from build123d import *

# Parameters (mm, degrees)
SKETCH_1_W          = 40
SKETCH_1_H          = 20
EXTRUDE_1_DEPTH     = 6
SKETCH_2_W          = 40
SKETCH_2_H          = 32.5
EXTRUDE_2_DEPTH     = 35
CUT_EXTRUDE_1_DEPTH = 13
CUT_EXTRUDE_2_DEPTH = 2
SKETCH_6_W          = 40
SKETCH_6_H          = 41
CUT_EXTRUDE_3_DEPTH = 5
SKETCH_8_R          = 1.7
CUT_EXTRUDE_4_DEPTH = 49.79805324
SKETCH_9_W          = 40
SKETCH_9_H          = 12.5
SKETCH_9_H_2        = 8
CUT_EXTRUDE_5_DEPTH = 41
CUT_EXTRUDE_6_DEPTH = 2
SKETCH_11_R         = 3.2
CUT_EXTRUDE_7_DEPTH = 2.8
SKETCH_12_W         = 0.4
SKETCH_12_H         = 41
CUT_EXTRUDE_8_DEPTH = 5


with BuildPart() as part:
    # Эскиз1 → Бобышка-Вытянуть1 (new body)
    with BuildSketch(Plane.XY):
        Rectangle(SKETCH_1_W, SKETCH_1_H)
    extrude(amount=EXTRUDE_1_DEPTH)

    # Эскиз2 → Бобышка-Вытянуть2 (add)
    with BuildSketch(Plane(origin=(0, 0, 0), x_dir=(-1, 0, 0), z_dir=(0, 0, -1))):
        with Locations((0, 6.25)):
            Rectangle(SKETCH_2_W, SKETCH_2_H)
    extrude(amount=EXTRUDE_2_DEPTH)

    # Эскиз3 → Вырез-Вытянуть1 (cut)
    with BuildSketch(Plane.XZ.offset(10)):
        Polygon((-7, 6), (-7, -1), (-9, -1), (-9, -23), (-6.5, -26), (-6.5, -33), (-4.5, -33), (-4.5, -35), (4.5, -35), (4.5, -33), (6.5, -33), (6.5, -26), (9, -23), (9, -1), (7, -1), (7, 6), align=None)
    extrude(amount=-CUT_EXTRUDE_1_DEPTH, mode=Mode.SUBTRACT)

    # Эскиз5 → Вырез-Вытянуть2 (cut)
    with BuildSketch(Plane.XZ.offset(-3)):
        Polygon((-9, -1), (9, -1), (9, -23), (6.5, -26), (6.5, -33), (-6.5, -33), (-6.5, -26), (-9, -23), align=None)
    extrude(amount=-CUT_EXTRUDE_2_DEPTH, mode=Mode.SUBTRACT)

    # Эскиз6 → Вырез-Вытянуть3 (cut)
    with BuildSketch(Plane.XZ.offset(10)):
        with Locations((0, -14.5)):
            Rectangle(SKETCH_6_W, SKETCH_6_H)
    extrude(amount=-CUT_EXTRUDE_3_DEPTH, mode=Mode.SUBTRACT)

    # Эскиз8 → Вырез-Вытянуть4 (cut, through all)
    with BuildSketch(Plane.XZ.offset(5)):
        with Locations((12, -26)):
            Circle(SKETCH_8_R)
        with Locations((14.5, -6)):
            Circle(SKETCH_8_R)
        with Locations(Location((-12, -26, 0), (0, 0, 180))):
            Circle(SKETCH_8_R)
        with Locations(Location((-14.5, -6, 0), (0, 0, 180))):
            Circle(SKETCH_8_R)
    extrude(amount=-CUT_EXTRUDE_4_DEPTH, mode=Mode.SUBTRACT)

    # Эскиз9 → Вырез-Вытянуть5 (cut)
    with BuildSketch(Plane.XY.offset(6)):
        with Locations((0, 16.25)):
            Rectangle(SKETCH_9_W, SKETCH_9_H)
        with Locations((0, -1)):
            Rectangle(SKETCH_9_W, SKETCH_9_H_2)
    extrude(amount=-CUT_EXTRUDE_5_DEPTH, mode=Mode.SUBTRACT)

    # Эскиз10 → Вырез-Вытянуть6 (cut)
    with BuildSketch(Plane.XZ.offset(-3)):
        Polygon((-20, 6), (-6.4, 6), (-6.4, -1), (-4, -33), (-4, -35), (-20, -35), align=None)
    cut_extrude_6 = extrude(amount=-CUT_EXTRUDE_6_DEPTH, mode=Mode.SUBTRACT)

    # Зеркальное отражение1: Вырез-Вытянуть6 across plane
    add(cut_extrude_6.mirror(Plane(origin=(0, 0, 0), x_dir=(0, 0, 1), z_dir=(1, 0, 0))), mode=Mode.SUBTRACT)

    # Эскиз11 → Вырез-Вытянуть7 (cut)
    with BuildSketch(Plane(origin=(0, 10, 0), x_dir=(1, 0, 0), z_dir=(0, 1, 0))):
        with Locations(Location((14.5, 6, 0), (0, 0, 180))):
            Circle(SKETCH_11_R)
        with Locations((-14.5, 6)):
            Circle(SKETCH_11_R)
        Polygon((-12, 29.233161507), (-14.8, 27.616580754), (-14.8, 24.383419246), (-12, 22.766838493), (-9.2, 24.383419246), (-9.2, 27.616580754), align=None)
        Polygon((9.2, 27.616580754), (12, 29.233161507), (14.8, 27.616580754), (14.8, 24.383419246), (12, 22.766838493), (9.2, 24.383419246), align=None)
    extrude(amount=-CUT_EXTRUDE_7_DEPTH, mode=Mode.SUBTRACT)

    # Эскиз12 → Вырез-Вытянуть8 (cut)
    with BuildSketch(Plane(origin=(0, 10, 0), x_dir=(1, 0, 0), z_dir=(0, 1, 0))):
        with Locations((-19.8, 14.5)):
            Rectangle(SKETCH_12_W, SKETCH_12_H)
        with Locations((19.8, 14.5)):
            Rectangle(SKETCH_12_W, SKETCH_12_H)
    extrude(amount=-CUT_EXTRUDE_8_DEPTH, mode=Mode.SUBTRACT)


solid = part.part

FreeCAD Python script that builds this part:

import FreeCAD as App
import Part
import Sketcher
Q = App.Units.Quantity


def add_polygon(sketch, points):
    """Adds a closed chain of lines whose ends are joined by coincident constraints."""
    first, n = sketch.GeometryCount, len(points)
    for a, b in zip(points, points[1:] + points[:1]):
        sketch.addGeometry(Part.LineSegment(App.Vector(*a, 0), App.Vector(*b, 0)), False)
    for i in range(n):
        sketch.addConstraint(Sketcher.Constraint("Coincident", first + i, 2, first + (i + 1) % n, 1))

doc = App.newDocument("Part")
body = doc.addObject("PartDesign::Body", "Body")

# Sketch on XY plane
sketch1 = doc.addObject("Sketcher::SketchObject", "Sketch")
body.addObject(sketch1)
sketch1.AttachmentSupport = (doc.XY_Plane, [""])
sketch1.MapMode = "FlatFace"
add_polygon(sketch1, [(-20, 10), (-20, -10), (20, -10), (20, 10)])  # lines 0-3
sketch1.addConstraint([
    Sketcher.Constraint("Vertical", 0),
    Sketcher.Constraint("Horizontal", 1),
    Sketcher.Constraint("Vertical", 2),
    Sketcher.Constraint("Horizontal", 3),
    Sketcher.Constraint("Symmetric", 0, 2, 2, 2, -1, 1),
    Sketcher.Constraint("DistanceX", 1, 1, 1, 2, Q("40 mm")),
    Sketcher.Constraint("DistanceY", 0, 2, 0, 1, Q("20 mm")),
])
pad1 = doc.addObject("PartDesign::Pad", "Pad")
body.addObject(pad1)
pad1.Profile = sketch1
pad1.Length = 6

# Sketch on XY plane
sketch2 = doc.addObject("Sketcher::SketchObject", "Sketch001")
body.addObject(sketch2)
sketch2.AttachmentSupport = (doc.XY_Plane, [""])
sketch2.MapMode = "FlatFace"
add_polygon(sketch2, [(20, 22), (20, -10), (-20, -10), (-20, 22)])  # lines 0-3
sketch2.addConstraint([
    Sketcher.Constraint("Vertical", 0),
    Sketcher.Constraint("Horizontal", 1),
    Sketcher.Constraint("Vertical", 2),
    Sketcher.Constraint("Horizontal", 3),
    Sketcher.Constraint("DistanceX", 1, 2, 1, 1, Q("40 mm")),
    Sketcher.Constraint("DistanceY", 0, 2, 0, 1, Q("32.5 mm")),
    Sketcher.Constraint("DistanceX", -1, 1, 0, 2, Q("20 mm")),
    Sketcher.Constraint("DistanceY", 0, 2, -1, 1, Q("10 mm")),
])
pad2 = doc.addObject("PartDesign::Pad", "Pad001")
body.addObject(pad2)
pad2.Profile = sketch2
pad2.Length = 35
pad2.Reversed = True

# Sketch on XZ plane
sketch3 = doc.addObject("Sketcher::SketchObject", "Sketch002")
body.addObject(sketch3)
sketch3.AttachmentSupport = (doc.XZ_Plane, [""])
sketch3.MapMode = "FlatFace"
sketch3.AttachmentOffset = App.Placement(App.Vector(0, 0, 10), App.Rotation())
add_polygon(sketch3, [(-7, 6), (-7, -1), (-9, -1), (-9, -23), (-6.5, -26), (-6.5, -33), (-4.5, -33), (-4.5, -35), (4.5, -35), (4.5, -33), (6.5, -33), (6.5, -26), (9, -23), (9, -1), (7, -1), (7, 6)])  # lines 0-15
sketch3.addConstraint([
    Sketcher.Constraint("Vertical", 0),
    Sketcher.Constraint("Horizontal", 1),
    Sketcher.Constraint("Vertical", 2),
    Sketcher.Constraint("Vertical", 4),
    Sketcher.Constraint("Horizontal", 5),
    Sketcher.Constraint("Vertical", 6),
    Sketcher.Constraint("Horizontal", 7),
    Sketcher.Constraint("Vertical", 8),
    Sketcher.Constraint("Horizontal", 9),
    Sketcher.Constraint("Vertical", 10),
    Sketcher.Constraint("Vertical", 12),
    Sketcher.Constraint("Horizontal", 13),
    Sketcher.Constraint("Vertical", 14),
    Sketcher.Constraint("Horizontal", 15),
    Sketcher.Constraint("Symmetric", 5, 2, 8, 2, -2),
    Sketcher.Constraint("Symmetric", 3, 2, 10, 2, -2),
    Sketcher.Constraint("Symmetric", 2, 2, 11, 2, -2),
    Sketcher.Constraint("Symmetric", 0, 2, 13, 2, -2),
    Sketcher.Constraint("Equal", 1, 5),
    Sketcher.Constraint("Equal", 0, 4),
    Sketcher.Constraint("Equal", 13, 6),
    Sketcher.Constraint("DistanceX", 1, 2, 1, 1, Q("2 mm")),
    Sketcher.Constraint("DistanceX", 7, 1, 7, 2, Q("9 mm")),
    Sketcher.Constraint("DistanceX", 15, 2, 15, 1, Q("14 mm")),
    Sketcher.Constraint("DistanceY", 0, 2, 0, 1, Q("7 mm")),
    Sketcher.Constraint("DistanceY", 2, 2, 2, 1, Q("22 mm")),
    Sketcher.Constraint("DistanceY", 0, 2, -1, 1, Q("1 mm")),
    Sketcher.Constraint("DistanceY", 3, 2, -1, 1, Q("26 mm")),
])
pocket1 = doc.addObject("PartDesign::Pocket", "Pocket")
body.addObject(pocket1)
pocket1.Profile = sketch3
pocket1.Length = 13

# Sketch on XZ plane
sketch4 = doc.addObject("Sketcher::SketchObject", "Sketch003")
body.addObject(sketch4)
sketch4.AttachmentSupport = (doc.XZ_Plane, [""])
sketch4.MapMode = "FlatFace"
sketch4.AttachmentOffset = App.Placement(App.Vector(0, 0, -3), App.Rotation())
add_polygon(sketch4, [(9, -1), (-9, -1), (-9, -23), (-6.5, -26), (-6.5, -33), (6.5, -33), (6.5, -26), (9, -23)])  # lines 0-7
sketch4.addConstraint([
    Sketcher.Constraint("Horizontal", 0),
    Sketcher.Constraint("Vertical", 1),
    Sketcher.Constraint("Vertical", 3),
    Sketcher.Constraint("Horizontal", 4),
    Sketcher.Constraint("Vertical", 5),
    Sketcher.Constraint("Vertical", 7),
    Sketcher.Constraint("Symmetric", 2, 2, 5, 2, -2),
    Sketcher.Constraint("Symmetric", 1, 2, 6, 2, -2),
    Sketcher.Constraint("DistanceX", 0, 2, 0, 1, Q("18 mm")),
    Sketcher.Constraint("DistanceX", 4, 1, 4, 2, Q("13 mm")),
    Sketcher.Constraint("DistanceY", 1, 2, 1, 1, Q("22 mm")),
    Sketcher.Constraint("DistanceY", 3, 2, 3, 1, Q("7 mm")),
    Sketcher.Constraint("DistanceY", 0, 2, -1, 1, Q("1 mm")),
    Sketcher.Constraint("DistanceY", 2, 2, -1, 1, Q("26 mm")),
])
pocket2 = doc.addObject("PartDesign::Pocket", "Pocket001")
body.addObject(pocket2)
pocket2.Profile = sketch4
pocket2.Length = 2

# Sketch on XZ plane
sketch5 = doc.addObject("Sketcher::SketchObject", "Sketch004")
body.addObject(sketch5)
sketch5.AttachmentSupport = (doc.XZ_Plane, [""])
sketch5.MapMode = "FlatFace"
sketch5.AttachmentOffset = App.Placement(App.Vector(0, 0, 10), App.Rotation())
add_polygon(sketch5, [(-20, 6), (-20, -35), (20, -35), (20, 6)])  # lines 0-3
sketch5.addConstraint([
    Sketcher.Constraint("Vertical", 0),
    Sketcher.Constraint("Horizontal", 1),
    Sketcher.Constraint("Vertical", 2),
    Sketcher.Constraint("Horizontal", 3),
    Sketcher.Constraint("DistanceX", 1, 1, 1, 2, Q("40 mm")),
    Sketcher.Constraint("DistanceY", 0, 2, 0, 1, Q("41 mm")),
    Sketcher.Constraint("DistanceX", 0, 2, -1, 1, Q("20 mm")),
    Sketcher.Constraint("DistanceY", 0, 2, -1, 1, Q("35 mm")),
])
pocket3 = doc.addObject("PartDesign::Pocket", "Pocket002")
body.addObject(pocket3)
pocket3.Profile = sketch5
pocket3.Length = 5

# Sketch on XZ plane
sketch6 = doc.addObject("Sketcher::SketchObject", "Sketch005")
body.addObject(sketch6)
sketch6.AttachmentSupport = (doc.XZ_Plane, [""])
sketch6.MapMode = "FlatFace"
sketch6.AttachmentOffset = App.Placement(App.Vector(0, 0, 5), App.Rotation())
sketch6.addGeometry([
    Part.Circle(App.Vector(12, -26, 0), App.Vector(0, 0, 1), 1.7),
    Part.Circle(App.Vector(14.5, -6, 0), App.Vector(0, 0, 1), 1.7),
    Part.Circle(App.Vector(-12, -26, 0), App.Vector(0, 0, 1), 1.7),
    Part.Circle(App.Vector(-14.5, -6, 0), App.Vector(0, 0, 1), 1.7),
], False)
sketch6.addConstraint([
    Sketcher.Constraint("Equal", 0, 1),
    Sketcher.Constraint("Equal", 1, 2),
    Sketcher.Constraint("Equal", 2, 3),
    Sketcher.Constraint("Symmetric", 0, 3, 2, 3, -2),
    Sketcher.Constraint("Symmetric", 1, 3, 3, 3, -2),
    Sketcher.Constraint("Diameter", 0, Q("3.4 mm")),
    Sketcher.Constraint("DistanceX", -1, 1, 0, 3, Q("12 mm")),
    Sketcher.Constraint("DistanceY", 0, 3, -1, 1, Q("26 mm")),
    Sketcher.Constraint("DistanceY", 1, 3, -1, 1, Q("6 mm")),
    Sketcher.Constraint("DistanceX", 3, 3, 1, 3, Q("29 mm")),
])
pocket4 = doc.addObject("PartDesign::Pocket", "Pocket003")
body.addObject(pocket4)
pocket4.Profile = sketch6
pocket4.Type = "ThroughAll"

# Sketch on XY plane
sketch7 = doc.addObject("Sketcher::SketchObject", "Sketch006")
body.addObject(sketch7)
sketch7.AttachmentSupport = (doc.XY_Plane, [""])
sketch7.MapMode = "FlatFace"
sketch7.AttachmentOffset = App.Placement(App.Vector(0, 0, 6), App.Rotation())
add_polygon(sketch7, [(-20, 22), (-20, 10), (20, 10), (20, 22)])  # lines 0-3
add_polygon(sketch7, [(-20, 3), (-20, -5), (20, -5), (20, 3)])  # lines 4-7
sketch7.addConstraint([
    Sketcher.Constraint("Vertical", 0),
    Sketcher.Constraint("Horizontal", 1),
    Sketcher.Constraint("Vertical", 2),
    Sketcher.Constraint("Horizontal", 3),
    Sketcher.Constraint("Vertical", 4),
    Sketcher.Constraint("Horizontal", 5),
    Sketcher.Constraint("Vertical", 6),
    Sketcher.Constraint("Horizontal", 7),
    Sketcher.Constraint("Vertical", 3, 2, 4, 2),
    Sketcher.Constraint("Vertical", 2, 2, 5, 2),
    Sketcher.Constraint("DistanceX", 1, 1, 1, 2, Q("40 mm")),
    Sketcher.Constraint("DistanceY", 4, 2, 4, 1, Q("8 mm")),
    Sketcher.Constraint("DistanceY", 0, 2, 0, 1, Q("12.5 mm")),
    Sketcher.Constraint("DistanceX", 0, 2, -1, 1, Q("20 mm")),
    Sketcher.Constraint("DistanceY", -1, 1, 0, 2, Q("10 mm")),
    Sketcher.Constraint("DistanceY", 4, 2, -1, 1, Q("5 mm")),
])
pocket5 = doc.addObject("PartDesign::Pocket", "Pocket004")
body.addObject(pocket5)
pocket5.Profile = sketch7
pocket5.Length = 41

# Sketch on XZ plane
sketch8 = doc.addObject("Sketcher::SketchObject", "Sketch007")
body.addObject(sketch8)
sketch8.AttachmentSupport = (doc.XZ_Plane, [""])
sketch8.MapMode = "FlatFace"
sketch8.AttachmentOffset = App.Placement(App.Vector(0, 0, -3), App.Rotation())
add_polygon(sketch8, [(-6.4, 6), (-20, 6), (-20, -35), (-4, -35), (-4, -33), (-6.4, -1)])  # lines 0-5
sketch8.addConstraint([
    Sketcher.Constraint("Horizontal", 0),
    Sketcher.Constraint("Vertical", 1),
    Sketcher.Constraint("Horizontal", 2),
    Sketcher.Constraint("Vertical", 3),
    Sketcher.Constraint("Vertical", 5),
    Sketcher.Constraint("DistanceX", 2, 1, 2, 2, Q("16 mm")),
    Sketcher.Constraint("DistanceY", 1, 2, 1, 1, Q("41 mm")),
    Sketcher.Constraint("DistanceY", 3, 1, 3, 2, Q("2 mm")),
    Sketcher.Constraint("DistanceY", 5, 1, 5, 2, Q("7 mm")),
    Sketcher.Constraint("DistanceX", 0, 2, 0, 1, Q("13.6 mm")),
    Sketcher.Constraint("DistanceX", 0, 2, -1, 1, Q("20 mm")),
    Sketcher.Constraint("DistanceY", -1, 1, 0, 2, Q("6 mm")),
])
pocket6 = doc.addObject("PartDesign::Pocket", "Pocket005")
body.addObject(pocket6)
pocket6.Profile = sketch8
pocket6.Length = 2
doc.recompute()

mirrored = doc.addObject("PartDesign::Mirrored", "Mirrored")
body.addObject(mirrored)
mirrored.Originals = [pocket6]
mirrored.MirrorPlane = (doc.YZ_Plane, [""])
body.Tip = mirrored

# Sketch on XZ plane
sketch9 = doc.addObject("Sketcher::SketchObject", "Sketch008")
body.addObject(sketch9)
sketch9.AttachmentSupport = (doc.XZ_Plane, [""])
sketch9.MapMode = "FlatFace"
sketch9.AttachmentOffset = App.Placement(App.Vector(0, 0, -10), App.Rotation())
sketch9.addGeometry(Part.Circle(App.Vector(14.5, -6, 0), App.Vector(0, 0, 1), 3.2), False)  # 0
sketch9.addGeometry(Part.Circle(App.Vector(-14.5, -6, 0), App.Vector(0, 0, 1), 3.2), False)  # 1
add_polygon(sketch9, [(-12, -29.2), (-14.8, -27.6), (-14.8, -24.4), (-12, -22.8), (-9.2, -24.4), (-9.2, -27.6)])  # lines 2-7
add_polygon(sketch9, [(12, -29.2), (9.2, -27.6), (9.2, -24.4), (12, -22.8), (14.8, -24.4), (14.8, -27.6)])  # lines 8-13
sketch9.addConstraint([
    Sketcher.Constraint("Vertical", 3),
    Sketcher.Constraint("Vertical", 6),
    Sketcher.Constraint("Vertical", 9),
    Sketcher.Constraint("Vertical", 12),
    Sketcher.Constraint("Equal", 0, 1),
    Sketcher.Constraint("Symmetric", 0, 3, 1, 3, -2),
    Sketcher.Constraint("Symmetric", 6, 2, 8, 2, -2),
    Sketcher.Constraint("Symmetric", 4, 2, 10, 2, -2),
    Sketcher.Constraint("Symmetric", 3, 2, 11, 2, -2),
    Sketcher.Constraint("Symmetric", 7, 2, 13, 2, -2),
    Sketcher.Constraint("Parallel", 2, 5),
    Sketcher.Constraint("Parallel", 4, 7),
    Sketcher.Constraint("Parallel", 5, 8),
    Sketcher.Constraint("Parallel", 7, 10),
    Sketcher.Constraint("Parallel", 10, 13),
    Sketcher.Constraint("Horizontal", 3, 2, 5, 2),
    Sketcher.Constraint("Horizontal", 2, 2, 6, 2),
    Sketcher.Constraint("Diameter", 0, Q("6.4 mm")),
    Sketcher.Constraint("Angle", 2, Q("150 deg")),
    Sketcher.Constraint("DistanceY", 0, 3, -1, 1, Q("6 mm")),
    Sketcher.Constraint("DistanceX", 4, 2, -1, 1, Q("12 mm")),
    Sketcher.Constraint("DistanceX", 1, 3, 0, 3, Q("29 mm")),
    Sketcher.Constraint("DistanceX", 2, 2, -1, 1, Q("14.8 mm")),
    Sketcher.Constraint("DistanceY", 3, 1, 3, 2, Q("3.233162 mm")),
    Sketcher.Constraint("DistanceY", 2, 2, -1, 1, Q("27.616581 mm")),
])
pocket7 = doc.addObject("PartDesign::Pocket", "Pocket006")
body.addObject(pocket7)
pocket7.Profile = sketch9
pocket7.Length = 2.8
pocket7.Reversed = True

# Sketch on XZ plane
sketch10 = doc.addObject("Sketcher::SketchObject", "Sketch009")
body.addObject(sketch10)
sketch10.AttachmentSupport = (doc.XZ_Plane, [""])
sketch10.MapMode = "FlatFace"
sketch10.AttachmentOffset = App.Placement(App.Vector(0, 0, -10), App.Rotation())
add_polygon(sketch10, [(-20, -35), (-20, 6), (-19.6, 6), (-19.6, -35)])  # lines 0-3
add_polygon(sketch10, [(19.6, -35), (19.6, 6), (20, 6), (20, -35)])  # lines 4-7
sketch10.addConstraint([
    Sketcher.Constraint("Vertical", 0),
    Sketcher.Constraint("Horizontal", 1),
    Sketcher.Constraint("Vertical", 2),
    Sketcher.Constraint("Horizontal", 3),
    Sketcher.Constraint("Vertical", 4),
    Sketcher.Constraint("Horizontal", 5),
    Sketcher.Constraint("Vertical", 6),
    Sketcher.Constraint("Horizontal", 7),
    Sketcher.Constraint("Symmetric", 1, 2, 4, 2, -2),
    Sketcher.Constraint("Symmetric", 3, 2, 6, 2, -2),
    Sketcher.Constraint("DistanceY", 0, 1, 0, 2, Q("41 mm")),
    Sketcher.Constraint("DistanceX", 1, 1, 1, 2, Q("0.4 mm")),
    Sketcher.Constraint("DistanceX", 0, 2, -1, 1, Q("20 mm")),
    Sketcher.Constraint("DistanceY", -1, 1, 0, 2, Q("6 mm")),
])
pocket8 = doc.addObject("PartDesign::Pocket", "Pocket007")
body.addObject(pocket8)
pocket8.Profile = sketch10
pocket8.Length = 5
pocket8.Reversed = True

doc.recompute()
